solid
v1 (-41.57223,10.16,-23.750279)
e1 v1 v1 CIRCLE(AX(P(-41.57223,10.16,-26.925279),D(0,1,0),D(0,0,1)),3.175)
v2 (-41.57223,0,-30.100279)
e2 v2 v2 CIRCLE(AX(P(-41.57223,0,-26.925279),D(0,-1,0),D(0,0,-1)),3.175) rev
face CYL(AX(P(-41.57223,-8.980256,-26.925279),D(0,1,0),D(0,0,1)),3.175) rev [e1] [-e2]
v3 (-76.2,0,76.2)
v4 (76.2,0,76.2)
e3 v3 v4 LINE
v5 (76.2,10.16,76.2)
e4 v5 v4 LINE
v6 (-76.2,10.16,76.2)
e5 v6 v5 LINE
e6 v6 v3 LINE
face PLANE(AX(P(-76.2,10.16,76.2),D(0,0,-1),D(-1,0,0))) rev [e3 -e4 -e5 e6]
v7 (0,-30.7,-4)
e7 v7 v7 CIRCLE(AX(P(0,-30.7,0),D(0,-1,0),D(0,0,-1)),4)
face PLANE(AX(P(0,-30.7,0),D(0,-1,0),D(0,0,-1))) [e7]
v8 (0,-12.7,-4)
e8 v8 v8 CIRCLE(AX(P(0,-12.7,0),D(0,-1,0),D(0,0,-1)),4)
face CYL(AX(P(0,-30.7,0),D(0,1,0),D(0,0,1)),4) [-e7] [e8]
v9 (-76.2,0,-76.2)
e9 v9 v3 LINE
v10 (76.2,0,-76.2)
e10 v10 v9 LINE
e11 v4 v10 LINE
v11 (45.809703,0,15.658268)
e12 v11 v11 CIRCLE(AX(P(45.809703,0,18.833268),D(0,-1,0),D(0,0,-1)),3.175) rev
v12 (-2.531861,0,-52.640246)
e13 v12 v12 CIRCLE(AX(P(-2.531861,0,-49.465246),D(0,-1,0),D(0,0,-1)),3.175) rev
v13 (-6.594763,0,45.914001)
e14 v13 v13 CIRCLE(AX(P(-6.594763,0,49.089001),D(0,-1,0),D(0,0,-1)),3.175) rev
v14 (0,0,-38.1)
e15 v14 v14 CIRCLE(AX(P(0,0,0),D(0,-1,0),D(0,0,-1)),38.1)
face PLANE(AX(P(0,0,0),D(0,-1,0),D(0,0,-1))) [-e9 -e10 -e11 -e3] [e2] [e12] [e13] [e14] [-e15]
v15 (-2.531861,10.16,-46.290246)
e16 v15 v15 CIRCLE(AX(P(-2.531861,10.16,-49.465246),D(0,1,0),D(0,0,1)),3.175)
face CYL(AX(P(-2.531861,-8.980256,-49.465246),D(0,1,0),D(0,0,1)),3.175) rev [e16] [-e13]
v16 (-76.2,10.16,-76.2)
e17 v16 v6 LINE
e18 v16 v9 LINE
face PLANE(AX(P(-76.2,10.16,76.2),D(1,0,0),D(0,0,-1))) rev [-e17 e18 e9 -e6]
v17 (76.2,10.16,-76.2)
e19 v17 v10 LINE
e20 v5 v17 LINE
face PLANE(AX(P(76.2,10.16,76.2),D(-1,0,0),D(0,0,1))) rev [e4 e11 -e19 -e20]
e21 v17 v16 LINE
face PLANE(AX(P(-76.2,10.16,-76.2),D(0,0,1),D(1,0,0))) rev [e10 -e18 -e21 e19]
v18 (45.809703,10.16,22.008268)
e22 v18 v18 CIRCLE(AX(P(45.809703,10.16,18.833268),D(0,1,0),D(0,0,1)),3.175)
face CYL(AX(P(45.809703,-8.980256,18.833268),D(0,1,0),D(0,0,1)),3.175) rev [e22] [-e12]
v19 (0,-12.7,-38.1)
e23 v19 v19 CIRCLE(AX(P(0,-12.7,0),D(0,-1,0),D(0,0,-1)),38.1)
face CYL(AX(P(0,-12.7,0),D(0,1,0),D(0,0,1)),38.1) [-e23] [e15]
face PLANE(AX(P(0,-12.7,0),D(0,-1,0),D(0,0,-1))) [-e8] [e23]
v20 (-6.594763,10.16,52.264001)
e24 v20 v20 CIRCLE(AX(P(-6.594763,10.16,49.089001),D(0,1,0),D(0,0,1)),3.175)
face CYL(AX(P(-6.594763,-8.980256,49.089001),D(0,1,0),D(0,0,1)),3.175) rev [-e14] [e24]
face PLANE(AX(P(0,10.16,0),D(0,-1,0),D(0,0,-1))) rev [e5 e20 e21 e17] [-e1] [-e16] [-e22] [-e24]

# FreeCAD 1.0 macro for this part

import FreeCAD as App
import Part
import Sketcher
from FreeCAD import Vector
Q = App.Units.Quantity

doc = App.newDocument("Part")
body = doc.addObject("PartDesign::Body", "Body")

sketch1 = body.newObject("Sketcher::SketchObject", "Sketch")
sketch1.AttachmentSupport = (doc.getObject("XZ_Plane"), [""])
sketch1.MapMode = "FlatFace"
sketch1.addGeometry(Part.LineSegment(Vector(-76, -76, 0), Vector(-76, 76, 0)), False)
sketch1.addGeometry(Part.LineSegment(Vector(-76, 76, 0), Vector(76, 76, 0)), False)
sketch1.addGeometry(Part.LineSegment(Vector(76, 76, 0), Vector(76, -76, 0)), False)
sketch1.addGeometry(Part.LineSegment(Vector(76, -76, 0), Vector(-76, -76, 0)), False)
sketch1.addConstraint(Sketcher.Constraint("Coincident", 0, 2, 1, 1))
sketch1.addConstraint(Sketcher.Constraint("Coincident", 1, 2, 2, 1))
sketch1.addConstraint(Sketcher.Constraint("Coincident", 2, 2, 3, 1))
sketch1.addConstraint(Sketcher.Constraint("Coincident", 3, 2, 0, 1))
sketch1.addConstraint(Sketcher.Constraint("Vertical", 0))
sketch1.addConstraint(Sketcher.Constraint("Horizontal", 1))
sketch1.addConstraint(Sketcher.Constraint("Vertical", 2))
sketch1.addConstraint(Sketcher.Constraint("Horizontal", 3))
sketch1.addConstraint(Sketcher.Constraint("Symmetric", 0, 2, 2, 2, -1, 1))
sketch1.addConstraint(Sketcher.Constraint("Equal", 3, 0))
sketch1.addConstraint(Sketcher.Constraint("DistanceX", 1, 1, 1, 2, Q("6 in")))
pad1 = body.newObject("PartDesign::Pad", "Pad")
pad1.Profile = sketch1
pad1.Length = Q("0.4 in")
pad1.Reversed = True

sketch2 = body.newObject("Sketcher::SketchObject", "Sketch001")
sketch2.AttachmentSupport = (doc.getObject("XZ_Plane"), [""])
sketch2.MapMode = "FlatFace"
sketch2.addGeometry(Part.Circle(Vector(0, 0, 0), Vector(0, 0, 1), 38), False)
sketch2.addConstraint(Sketcher.Constraint("Coincident", 0, 3, -1, 1))
sketch2.addConstraint(Sketcher.Constraint("Diameter", 0, Q("3 in")))
pad2 = body.newObject("PartDesign::Pad", "Pad001")
pad2.Profile = sketch2
pad2.Length = Q("0.5 in")

sketch3 = body.newObject("Sketcher::SketchObject", "Sketch002")
sketch3.AttachmentSupport = (doc.getObject("XZ_Plane"), [""])
sketch3.MapMode = "FlatFace"
sketch3.AttachmentOffset = App.Placement(Vector(0, 0, 0.5 * 25.4), App.Rotation())
sketch3.addGeometry(Part.Circle(Vector(0, 0, 0), Vector(0, 0, 1), 4), False)
sketch3.addConstraint(Sketcher.Constraint("Coincident", 0, 3, -1, 1))
sketch3.addConstraint(Sketcher.Constraint("Diameter", 0, Q("8 mm")))
pad3 = body.newObject("PartDesign::Pad", "Pad002")
pad3.Profile = sketch3
pad3.Length = 18

sketch4 = body.newObject("Sketcher::SketchObject", "Sketch003")
sketch4.AttachmentSupport = (doc.getObject("XZ_Plane"), [""])
sketch4.MapMode = "FlatFace"
sketch4.AttachmentOffset = App.Placement(Vector(0, 0, -0.4 * 25.4), App.Rotation())
sketch4.addGeometry(Part.Circle(Vector(-41.6, -26.9, 0), Vector(0, 0, 1), 3.2), False)
sketch4.addGeometry(Part.Circle(Vector(-2.5, -49.5, 0), Vector(0, 0, 1), 3.2), False)
sketch4.addGeometry(Part.Circle(Vector(-6.6, 49.1, 0), Vector(0, 0, 1), 3.2), False)
sketch4.addGeometry(Part.Circle(Vector(45.8, 18.8, 0), Vector(0, 0, 1), 3.2), False)
sketch4.addConstraint(Sketcher.Constraint("Equal", 0, 1))
sketch4.addConstraint(Sketcher.Constraint("Equal", 1, 2))
sketch4.addConstraint(Sketcher.Constraint("Equal", 2, 3))
sketch4.addConstraint(Sketcher.Constraint("Diameter", 0, Q("0.25 in")))
sketch4.addConstraint(Sketcher.Constraint("DistanceY", -1, 1, 2, 3, Q("49.089001 mm")))
sketch4.addConstraint(Sketcher.Constraint("DistanceX", 0, 3, -1, 1, Q("41.57223 mm")))
sketch4.addConstraint(Sketcher.Constraint("DistanceY", 0, 3, -1, 1, Q("26.925279 mm")))
sketch4.addConstraint(Sketcher.Constraint("DistanceX", 1, 3, -1, 1, Q("2.531861 mm")))
sketch4.addConstraint(Sketcher.Constraint("DistanceY", -1, 1, 3, 3, Q("18.833268 mm")))
sketch4.addConstraint(Sketcher.Constraint("DistanceY", 1, 3, -1, 1, Q("49.465246 mm")))
sketch4.addConstraint(Sketcher.Constraint("DistanceX", 2, 3, -1, 1, Q("6.594763 mm")))
sketch4.addConstraint(Sketcher.Constraint("DistanceX", -1, 1, 3, 3, Q("45.809703 mm")))
pocket1 = body.newObject("PartDesign::Pocket", "Pocket")
pocket1.Profile = sketch4
pocket1.Length = Q("0.4 in")
pocket1.Reversed = True

doc.recompute()
